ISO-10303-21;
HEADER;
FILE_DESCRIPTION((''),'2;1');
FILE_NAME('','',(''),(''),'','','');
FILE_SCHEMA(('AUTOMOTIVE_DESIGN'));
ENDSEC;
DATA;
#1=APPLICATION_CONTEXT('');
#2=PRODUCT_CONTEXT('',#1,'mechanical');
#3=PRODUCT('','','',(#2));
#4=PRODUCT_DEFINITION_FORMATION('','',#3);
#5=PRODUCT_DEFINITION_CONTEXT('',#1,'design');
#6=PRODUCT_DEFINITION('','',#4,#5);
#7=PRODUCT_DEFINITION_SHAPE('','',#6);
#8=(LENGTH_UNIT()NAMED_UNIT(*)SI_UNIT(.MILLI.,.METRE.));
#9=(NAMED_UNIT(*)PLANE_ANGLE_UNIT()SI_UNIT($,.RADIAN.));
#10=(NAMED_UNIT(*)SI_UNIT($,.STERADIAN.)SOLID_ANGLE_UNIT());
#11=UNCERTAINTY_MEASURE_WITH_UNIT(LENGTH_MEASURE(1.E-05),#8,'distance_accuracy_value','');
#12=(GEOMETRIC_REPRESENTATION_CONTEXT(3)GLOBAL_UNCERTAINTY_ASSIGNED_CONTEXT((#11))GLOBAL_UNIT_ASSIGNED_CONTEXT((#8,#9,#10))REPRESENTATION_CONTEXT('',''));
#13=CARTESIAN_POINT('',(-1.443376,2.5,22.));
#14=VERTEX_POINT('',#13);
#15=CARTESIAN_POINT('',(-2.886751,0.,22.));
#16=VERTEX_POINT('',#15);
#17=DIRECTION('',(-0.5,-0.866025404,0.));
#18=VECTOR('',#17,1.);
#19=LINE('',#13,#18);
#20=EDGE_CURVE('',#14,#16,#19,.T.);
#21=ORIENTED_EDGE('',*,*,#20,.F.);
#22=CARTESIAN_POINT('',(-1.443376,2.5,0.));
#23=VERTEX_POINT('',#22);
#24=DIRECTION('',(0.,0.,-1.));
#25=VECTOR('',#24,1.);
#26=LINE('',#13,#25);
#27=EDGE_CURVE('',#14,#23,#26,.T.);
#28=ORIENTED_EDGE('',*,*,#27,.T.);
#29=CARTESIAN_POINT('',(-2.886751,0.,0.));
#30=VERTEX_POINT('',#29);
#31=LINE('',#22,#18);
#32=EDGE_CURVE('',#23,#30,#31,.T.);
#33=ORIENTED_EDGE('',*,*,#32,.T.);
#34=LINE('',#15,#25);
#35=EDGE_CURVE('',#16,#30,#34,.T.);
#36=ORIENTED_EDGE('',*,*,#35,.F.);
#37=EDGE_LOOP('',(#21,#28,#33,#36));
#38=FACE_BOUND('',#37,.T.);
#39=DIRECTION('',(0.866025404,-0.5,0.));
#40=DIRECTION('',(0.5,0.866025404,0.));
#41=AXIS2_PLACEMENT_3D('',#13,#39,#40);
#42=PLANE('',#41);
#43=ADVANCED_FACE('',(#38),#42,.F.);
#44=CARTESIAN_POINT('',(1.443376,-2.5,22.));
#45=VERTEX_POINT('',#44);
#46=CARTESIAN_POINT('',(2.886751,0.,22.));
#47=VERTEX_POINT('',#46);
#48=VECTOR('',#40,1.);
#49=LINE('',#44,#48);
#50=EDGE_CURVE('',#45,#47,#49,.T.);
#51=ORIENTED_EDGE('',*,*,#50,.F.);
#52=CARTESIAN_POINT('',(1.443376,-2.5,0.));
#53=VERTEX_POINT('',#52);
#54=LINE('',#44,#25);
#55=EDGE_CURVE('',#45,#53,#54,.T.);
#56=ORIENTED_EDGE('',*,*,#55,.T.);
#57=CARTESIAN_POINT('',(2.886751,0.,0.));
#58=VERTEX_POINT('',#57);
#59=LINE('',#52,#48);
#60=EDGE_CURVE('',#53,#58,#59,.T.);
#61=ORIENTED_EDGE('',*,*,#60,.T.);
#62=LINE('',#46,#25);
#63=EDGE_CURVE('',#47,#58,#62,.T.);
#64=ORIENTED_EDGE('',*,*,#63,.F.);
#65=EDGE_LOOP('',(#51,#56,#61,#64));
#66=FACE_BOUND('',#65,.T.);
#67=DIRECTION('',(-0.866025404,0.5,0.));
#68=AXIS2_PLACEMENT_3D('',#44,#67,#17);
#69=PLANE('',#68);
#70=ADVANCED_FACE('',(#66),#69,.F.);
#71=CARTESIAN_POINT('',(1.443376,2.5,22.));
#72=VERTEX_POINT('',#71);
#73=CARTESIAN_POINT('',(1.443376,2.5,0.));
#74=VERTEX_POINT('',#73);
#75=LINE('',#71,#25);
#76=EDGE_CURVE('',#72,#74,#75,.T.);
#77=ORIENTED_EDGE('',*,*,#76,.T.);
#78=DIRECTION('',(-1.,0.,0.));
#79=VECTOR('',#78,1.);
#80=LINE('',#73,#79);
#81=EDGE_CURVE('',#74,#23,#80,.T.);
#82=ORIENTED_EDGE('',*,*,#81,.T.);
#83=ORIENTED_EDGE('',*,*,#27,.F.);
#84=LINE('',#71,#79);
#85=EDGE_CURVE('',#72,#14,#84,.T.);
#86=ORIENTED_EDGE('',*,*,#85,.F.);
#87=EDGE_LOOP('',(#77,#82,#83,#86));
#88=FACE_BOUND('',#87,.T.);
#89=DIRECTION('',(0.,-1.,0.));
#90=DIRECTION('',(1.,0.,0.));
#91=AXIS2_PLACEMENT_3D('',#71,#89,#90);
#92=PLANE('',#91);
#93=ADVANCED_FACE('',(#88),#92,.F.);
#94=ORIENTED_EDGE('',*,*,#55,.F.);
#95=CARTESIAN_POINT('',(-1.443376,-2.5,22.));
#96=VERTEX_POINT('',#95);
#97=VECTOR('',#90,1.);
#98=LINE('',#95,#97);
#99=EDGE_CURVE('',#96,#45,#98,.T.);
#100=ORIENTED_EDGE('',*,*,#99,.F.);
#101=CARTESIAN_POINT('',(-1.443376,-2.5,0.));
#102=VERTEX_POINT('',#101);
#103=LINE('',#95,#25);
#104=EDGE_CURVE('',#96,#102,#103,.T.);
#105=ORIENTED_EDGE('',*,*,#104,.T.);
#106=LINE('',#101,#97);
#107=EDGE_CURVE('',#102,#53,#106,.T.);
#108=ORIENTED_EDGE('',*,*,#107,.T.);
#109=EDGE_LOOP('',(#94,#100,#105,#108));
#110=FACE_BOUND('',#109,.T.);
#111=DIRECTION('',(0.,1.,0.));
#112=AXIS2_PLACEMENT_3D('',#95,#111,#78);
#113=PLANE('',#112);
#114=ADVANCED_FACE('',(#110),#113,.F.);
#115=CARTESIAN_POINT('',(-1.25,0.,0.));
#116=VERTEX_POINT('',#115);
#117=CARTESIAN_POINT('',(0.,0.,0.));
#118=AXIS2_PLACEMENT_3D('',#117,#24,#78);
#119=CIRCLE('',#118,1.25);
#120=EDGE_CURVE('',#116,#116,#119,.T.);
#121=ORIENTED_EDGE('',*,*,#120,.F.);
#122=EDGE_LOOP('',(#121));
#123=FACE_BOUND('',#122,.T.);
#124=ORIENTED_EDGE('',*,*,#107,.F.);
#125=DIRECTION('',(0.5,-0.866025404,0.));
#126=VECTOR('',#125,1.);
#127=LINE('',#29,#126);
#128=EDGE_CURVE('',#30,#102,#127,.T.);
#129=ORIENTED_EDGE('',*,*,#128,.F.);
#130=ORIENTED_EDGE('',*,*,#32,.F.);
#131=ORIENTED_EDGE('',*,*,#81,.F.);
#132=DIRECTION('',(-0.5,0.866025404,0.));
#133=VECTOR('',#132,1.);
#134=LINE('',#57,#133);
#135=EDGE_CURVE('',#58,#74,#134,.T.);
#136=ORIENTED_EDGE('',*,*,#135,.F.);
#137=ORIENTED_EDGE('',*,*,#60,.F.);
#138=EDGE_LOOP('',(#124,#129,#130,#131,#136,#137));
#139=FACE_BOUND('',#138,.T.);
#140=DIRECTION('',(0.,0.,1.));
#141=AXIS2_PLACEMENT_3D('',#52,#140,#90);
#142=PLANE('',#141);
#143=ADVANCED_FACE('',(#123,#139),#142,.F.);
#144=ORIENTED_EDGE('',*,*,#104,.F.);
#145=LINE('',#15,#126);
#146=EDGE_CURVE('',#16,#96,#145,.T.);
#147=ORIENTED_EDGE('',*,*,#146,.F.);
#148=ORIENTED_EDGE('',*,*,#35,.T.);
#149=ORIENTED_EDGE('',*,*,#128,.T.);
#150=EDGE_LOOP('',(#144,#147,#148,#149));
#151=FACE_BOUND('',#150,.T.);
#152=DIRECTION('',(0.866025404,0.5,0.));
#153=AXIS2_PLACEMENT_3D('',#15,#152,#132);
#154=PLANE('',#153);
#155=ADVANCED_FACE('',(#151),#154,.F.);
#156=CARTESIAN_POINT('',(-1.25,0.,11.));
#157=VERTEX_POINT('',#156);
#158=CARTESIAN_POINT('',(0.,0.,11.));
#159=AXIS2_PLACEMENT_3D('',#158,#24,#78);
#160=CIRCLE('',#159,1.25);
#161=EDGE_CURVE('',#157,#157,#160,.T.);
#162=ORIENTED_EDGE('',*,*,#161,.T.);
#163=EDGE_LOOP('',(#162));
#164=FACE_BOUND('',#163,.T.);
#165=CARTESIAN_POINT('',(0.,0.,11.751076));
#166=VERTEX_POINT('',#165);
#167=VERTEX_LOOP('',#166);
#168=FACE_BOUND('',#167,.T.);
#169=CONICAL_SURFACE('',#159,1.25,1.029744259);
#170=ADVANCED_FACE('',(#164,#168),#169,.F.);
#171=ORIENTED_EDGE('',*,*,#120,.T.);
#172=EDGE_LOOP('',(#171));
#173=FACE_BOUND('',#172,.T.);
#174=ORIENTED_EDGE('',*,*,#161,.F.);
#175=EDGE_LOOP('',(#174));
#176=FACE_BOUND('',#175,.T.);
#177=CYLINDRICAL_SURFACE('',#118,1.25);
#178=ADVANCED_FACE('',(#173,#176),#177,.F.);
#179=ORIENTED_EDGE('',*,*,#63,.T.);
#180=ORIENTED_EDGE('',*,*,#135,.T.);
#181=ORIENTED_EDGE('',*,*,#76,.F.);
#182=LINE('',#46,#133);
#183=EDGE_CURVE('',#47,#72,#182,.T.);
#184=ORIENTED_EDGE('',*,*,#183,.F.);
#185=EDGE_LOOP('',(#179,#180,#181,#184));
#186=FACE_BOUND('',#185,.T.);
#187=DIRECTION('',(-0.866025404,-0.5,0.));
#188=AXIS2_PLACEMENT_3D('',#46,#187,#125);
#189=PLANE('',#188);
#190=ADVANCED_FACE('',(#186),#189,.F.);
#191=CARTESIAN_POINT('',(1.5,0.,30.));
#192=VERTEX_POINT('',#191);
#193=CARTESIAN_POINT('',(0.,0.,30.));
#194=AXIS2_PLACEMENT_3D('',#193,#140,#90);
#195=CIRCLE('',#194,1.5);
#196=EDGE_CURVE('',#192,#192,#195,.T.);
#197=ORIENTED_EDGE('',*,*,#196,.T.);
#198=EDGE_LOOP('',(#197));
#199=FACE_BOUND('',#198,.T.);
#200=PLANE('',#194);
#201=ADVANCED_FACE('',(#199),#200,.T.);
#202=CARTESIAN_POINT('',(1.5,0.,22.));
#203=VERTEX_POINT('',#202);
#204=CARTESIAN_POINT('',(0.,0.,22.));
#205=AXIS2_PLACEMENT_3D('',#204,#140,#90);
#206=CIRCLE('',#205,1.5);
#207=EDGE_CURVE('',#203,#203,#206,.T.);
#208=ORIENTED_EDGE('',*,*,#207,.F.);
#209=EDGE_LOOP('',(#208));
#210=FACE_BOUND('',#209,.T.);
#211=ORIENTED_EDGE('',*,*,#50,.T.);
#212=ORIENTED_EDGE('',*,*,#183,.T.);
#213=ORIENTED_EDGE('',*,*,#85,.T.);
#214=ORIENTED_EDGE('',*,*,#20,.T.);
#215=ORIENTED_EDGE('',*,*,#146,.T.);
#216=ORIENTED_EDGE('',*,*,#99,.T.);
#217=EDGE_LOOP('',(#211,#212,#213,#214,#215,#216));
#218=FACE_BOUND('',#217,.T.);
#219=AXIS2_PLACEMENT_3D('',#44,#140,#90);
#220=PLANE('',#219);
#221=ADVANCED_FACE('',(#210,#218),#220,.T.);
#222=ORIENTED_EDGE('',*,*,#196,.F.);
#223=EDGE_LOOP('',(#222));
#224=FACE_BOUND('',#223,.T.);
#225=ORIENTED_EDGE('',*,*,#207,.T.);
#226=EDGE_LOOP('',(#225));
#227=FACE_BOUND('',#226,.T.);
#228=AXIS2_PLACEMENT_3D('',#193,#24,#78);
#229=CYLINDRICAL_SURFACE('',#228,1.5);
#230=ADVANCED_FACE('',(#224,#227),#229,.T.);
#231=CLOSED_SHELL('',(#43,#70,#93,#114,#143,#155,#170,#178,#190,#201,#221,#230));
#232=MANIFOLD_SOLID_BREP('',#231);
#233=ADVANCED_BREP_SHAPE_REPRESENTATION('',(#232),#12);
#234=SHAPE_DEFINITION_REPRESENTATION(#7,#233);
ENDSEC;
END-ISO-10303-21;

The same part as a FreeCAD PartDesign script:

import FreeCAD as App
import Part
import Sketcher

V = App.Vector
Q = App.Units.Quantity


def add_polygon(sketch, points):
    """Adds a closed chain of lines whose ends are joined by coincident constraints."""
    first, n = sketch.GeometryCount, len(points)
    for a, b in zip(points, points[1:] + points[:1]):
        sketch.addGeometry(Part.LineSegment(App.Vector(*a, 0), App.Vector(*b, 0)), False)
    for i in range(n):
        sketch.addConstraint(Sketcher.Constraint("Coincident", first + i, 2, first + (i + 1) % n, 1))

doc = App.newDocument("Part")
body = doc.addObject("PartDesign::Body", "Body")

# Sketch on XY plane
sketch1 = doc.addObject("Sketcher::SketchObject", "Sketch")
body.addObject(sketch1)
sketch1.AttachmentSupport = (doc.XY_Plane, [""])
sketch1.MapMode = "FlatFace"
add_polygon(sketch1, [(1.443376, -2.5), (2.886751, 0), (1.443376, 2.5), (-1.443376, 2.5), (-2.886751, 0), (-1.443376, -2.5)])  # lines 0-5
sketch1.addConstraint([
    Sketcher.Constraint("Horizontal", 2),
    Sketcher.Constraint("Horizontal", 5),
    Sketcher.Constraint("Symmetric", 0, 2, 3, 2, -1, 1),
    Sketcher.Constraint("Symmetric", 1, 2, 4, 2, -1, 1),
    Sketcher.Constraint("PointOnObject", 0, 2, -1),
    Sketcher.Constraint("Parallel", 0, 3),
    Sketcher.Constraint("Vertical", 2, 2, 4, 2),
    Sketcher.Constraint("Angle", 0, Q("60 deg")),
    Sketcher.Constraint("DistanceY", 4, 2, 2, 2, Q("5 mm")),
    Sketcher.Constraint("DistanceX", 2, 2, 2, 1, Q("2.886751 mm")),
])
pad1 = doc.addObject("PartDesign::Pad", "Pad")
body.addObject(pad1)
pad1.Profile = sketch1
pad1.Length = 22

# Sketch on XY plane
sketch2 = doc.addObject("Sketcher::SketchObject", "Sketch001")
body.addObject(sketch2)
sketch2.AttachmentSupport = (doc.XY_Plane, [""])
sketch2.MapMode = "FlatFace"
sketch2.AttachmentOffset = App.Placement(V(0, 0, 22), App.Rotation())
sketch2.addGeometry(Part.Circle(V(0, 0, 0), V(0, 0, 1), 1.5), False)
sketch2.addConstraint([
    Sketcher.Constraint("Coincident", 0, 3, -1, 1),
    Sketcher.Constraint("Diameter", 0, Q("3 mm")),
])
pad2 = doc.addObject("PartDesign::Pad", "Pad001")
body.addObject(pad2)
pad2.Profile = sketch2
pad2.Length = 8

# Sketch on XY plane
sketch3 = doc.addObject("Sketcher::SketchObject", "Sketch002")
body.addObject(sketch3)
sketch3.AttachmentSupport = (doc.XY_Plane, [""])
sketch3.MapMode = "FlatFace"
sketch3.addGeometry(Part.Circle(V(0, 0, 0), V(0, 0, 1), 1.25), False)
sketch3.addConstraint([
    Sketcher.Constraint("Coincident", 0, 3, -1, 1),
    Sketcher.Constraint("Diameter", 0, Q("2.5 mm")),
])
doc.recompute()
hole = doc.addObject("PartDesign::Hole", "Hole")
body.addObject(hole)
hole.Profile = sketch3
hole.ThreadType = "None"
hole.Diameter = 2.5
hole.DepthType = "Dimension"
hole.Depth = 11
hole.DrillPoint = "Angled"
hole.DrillPointAngle = 118
hole.Reversed = True

doc.recompute()
